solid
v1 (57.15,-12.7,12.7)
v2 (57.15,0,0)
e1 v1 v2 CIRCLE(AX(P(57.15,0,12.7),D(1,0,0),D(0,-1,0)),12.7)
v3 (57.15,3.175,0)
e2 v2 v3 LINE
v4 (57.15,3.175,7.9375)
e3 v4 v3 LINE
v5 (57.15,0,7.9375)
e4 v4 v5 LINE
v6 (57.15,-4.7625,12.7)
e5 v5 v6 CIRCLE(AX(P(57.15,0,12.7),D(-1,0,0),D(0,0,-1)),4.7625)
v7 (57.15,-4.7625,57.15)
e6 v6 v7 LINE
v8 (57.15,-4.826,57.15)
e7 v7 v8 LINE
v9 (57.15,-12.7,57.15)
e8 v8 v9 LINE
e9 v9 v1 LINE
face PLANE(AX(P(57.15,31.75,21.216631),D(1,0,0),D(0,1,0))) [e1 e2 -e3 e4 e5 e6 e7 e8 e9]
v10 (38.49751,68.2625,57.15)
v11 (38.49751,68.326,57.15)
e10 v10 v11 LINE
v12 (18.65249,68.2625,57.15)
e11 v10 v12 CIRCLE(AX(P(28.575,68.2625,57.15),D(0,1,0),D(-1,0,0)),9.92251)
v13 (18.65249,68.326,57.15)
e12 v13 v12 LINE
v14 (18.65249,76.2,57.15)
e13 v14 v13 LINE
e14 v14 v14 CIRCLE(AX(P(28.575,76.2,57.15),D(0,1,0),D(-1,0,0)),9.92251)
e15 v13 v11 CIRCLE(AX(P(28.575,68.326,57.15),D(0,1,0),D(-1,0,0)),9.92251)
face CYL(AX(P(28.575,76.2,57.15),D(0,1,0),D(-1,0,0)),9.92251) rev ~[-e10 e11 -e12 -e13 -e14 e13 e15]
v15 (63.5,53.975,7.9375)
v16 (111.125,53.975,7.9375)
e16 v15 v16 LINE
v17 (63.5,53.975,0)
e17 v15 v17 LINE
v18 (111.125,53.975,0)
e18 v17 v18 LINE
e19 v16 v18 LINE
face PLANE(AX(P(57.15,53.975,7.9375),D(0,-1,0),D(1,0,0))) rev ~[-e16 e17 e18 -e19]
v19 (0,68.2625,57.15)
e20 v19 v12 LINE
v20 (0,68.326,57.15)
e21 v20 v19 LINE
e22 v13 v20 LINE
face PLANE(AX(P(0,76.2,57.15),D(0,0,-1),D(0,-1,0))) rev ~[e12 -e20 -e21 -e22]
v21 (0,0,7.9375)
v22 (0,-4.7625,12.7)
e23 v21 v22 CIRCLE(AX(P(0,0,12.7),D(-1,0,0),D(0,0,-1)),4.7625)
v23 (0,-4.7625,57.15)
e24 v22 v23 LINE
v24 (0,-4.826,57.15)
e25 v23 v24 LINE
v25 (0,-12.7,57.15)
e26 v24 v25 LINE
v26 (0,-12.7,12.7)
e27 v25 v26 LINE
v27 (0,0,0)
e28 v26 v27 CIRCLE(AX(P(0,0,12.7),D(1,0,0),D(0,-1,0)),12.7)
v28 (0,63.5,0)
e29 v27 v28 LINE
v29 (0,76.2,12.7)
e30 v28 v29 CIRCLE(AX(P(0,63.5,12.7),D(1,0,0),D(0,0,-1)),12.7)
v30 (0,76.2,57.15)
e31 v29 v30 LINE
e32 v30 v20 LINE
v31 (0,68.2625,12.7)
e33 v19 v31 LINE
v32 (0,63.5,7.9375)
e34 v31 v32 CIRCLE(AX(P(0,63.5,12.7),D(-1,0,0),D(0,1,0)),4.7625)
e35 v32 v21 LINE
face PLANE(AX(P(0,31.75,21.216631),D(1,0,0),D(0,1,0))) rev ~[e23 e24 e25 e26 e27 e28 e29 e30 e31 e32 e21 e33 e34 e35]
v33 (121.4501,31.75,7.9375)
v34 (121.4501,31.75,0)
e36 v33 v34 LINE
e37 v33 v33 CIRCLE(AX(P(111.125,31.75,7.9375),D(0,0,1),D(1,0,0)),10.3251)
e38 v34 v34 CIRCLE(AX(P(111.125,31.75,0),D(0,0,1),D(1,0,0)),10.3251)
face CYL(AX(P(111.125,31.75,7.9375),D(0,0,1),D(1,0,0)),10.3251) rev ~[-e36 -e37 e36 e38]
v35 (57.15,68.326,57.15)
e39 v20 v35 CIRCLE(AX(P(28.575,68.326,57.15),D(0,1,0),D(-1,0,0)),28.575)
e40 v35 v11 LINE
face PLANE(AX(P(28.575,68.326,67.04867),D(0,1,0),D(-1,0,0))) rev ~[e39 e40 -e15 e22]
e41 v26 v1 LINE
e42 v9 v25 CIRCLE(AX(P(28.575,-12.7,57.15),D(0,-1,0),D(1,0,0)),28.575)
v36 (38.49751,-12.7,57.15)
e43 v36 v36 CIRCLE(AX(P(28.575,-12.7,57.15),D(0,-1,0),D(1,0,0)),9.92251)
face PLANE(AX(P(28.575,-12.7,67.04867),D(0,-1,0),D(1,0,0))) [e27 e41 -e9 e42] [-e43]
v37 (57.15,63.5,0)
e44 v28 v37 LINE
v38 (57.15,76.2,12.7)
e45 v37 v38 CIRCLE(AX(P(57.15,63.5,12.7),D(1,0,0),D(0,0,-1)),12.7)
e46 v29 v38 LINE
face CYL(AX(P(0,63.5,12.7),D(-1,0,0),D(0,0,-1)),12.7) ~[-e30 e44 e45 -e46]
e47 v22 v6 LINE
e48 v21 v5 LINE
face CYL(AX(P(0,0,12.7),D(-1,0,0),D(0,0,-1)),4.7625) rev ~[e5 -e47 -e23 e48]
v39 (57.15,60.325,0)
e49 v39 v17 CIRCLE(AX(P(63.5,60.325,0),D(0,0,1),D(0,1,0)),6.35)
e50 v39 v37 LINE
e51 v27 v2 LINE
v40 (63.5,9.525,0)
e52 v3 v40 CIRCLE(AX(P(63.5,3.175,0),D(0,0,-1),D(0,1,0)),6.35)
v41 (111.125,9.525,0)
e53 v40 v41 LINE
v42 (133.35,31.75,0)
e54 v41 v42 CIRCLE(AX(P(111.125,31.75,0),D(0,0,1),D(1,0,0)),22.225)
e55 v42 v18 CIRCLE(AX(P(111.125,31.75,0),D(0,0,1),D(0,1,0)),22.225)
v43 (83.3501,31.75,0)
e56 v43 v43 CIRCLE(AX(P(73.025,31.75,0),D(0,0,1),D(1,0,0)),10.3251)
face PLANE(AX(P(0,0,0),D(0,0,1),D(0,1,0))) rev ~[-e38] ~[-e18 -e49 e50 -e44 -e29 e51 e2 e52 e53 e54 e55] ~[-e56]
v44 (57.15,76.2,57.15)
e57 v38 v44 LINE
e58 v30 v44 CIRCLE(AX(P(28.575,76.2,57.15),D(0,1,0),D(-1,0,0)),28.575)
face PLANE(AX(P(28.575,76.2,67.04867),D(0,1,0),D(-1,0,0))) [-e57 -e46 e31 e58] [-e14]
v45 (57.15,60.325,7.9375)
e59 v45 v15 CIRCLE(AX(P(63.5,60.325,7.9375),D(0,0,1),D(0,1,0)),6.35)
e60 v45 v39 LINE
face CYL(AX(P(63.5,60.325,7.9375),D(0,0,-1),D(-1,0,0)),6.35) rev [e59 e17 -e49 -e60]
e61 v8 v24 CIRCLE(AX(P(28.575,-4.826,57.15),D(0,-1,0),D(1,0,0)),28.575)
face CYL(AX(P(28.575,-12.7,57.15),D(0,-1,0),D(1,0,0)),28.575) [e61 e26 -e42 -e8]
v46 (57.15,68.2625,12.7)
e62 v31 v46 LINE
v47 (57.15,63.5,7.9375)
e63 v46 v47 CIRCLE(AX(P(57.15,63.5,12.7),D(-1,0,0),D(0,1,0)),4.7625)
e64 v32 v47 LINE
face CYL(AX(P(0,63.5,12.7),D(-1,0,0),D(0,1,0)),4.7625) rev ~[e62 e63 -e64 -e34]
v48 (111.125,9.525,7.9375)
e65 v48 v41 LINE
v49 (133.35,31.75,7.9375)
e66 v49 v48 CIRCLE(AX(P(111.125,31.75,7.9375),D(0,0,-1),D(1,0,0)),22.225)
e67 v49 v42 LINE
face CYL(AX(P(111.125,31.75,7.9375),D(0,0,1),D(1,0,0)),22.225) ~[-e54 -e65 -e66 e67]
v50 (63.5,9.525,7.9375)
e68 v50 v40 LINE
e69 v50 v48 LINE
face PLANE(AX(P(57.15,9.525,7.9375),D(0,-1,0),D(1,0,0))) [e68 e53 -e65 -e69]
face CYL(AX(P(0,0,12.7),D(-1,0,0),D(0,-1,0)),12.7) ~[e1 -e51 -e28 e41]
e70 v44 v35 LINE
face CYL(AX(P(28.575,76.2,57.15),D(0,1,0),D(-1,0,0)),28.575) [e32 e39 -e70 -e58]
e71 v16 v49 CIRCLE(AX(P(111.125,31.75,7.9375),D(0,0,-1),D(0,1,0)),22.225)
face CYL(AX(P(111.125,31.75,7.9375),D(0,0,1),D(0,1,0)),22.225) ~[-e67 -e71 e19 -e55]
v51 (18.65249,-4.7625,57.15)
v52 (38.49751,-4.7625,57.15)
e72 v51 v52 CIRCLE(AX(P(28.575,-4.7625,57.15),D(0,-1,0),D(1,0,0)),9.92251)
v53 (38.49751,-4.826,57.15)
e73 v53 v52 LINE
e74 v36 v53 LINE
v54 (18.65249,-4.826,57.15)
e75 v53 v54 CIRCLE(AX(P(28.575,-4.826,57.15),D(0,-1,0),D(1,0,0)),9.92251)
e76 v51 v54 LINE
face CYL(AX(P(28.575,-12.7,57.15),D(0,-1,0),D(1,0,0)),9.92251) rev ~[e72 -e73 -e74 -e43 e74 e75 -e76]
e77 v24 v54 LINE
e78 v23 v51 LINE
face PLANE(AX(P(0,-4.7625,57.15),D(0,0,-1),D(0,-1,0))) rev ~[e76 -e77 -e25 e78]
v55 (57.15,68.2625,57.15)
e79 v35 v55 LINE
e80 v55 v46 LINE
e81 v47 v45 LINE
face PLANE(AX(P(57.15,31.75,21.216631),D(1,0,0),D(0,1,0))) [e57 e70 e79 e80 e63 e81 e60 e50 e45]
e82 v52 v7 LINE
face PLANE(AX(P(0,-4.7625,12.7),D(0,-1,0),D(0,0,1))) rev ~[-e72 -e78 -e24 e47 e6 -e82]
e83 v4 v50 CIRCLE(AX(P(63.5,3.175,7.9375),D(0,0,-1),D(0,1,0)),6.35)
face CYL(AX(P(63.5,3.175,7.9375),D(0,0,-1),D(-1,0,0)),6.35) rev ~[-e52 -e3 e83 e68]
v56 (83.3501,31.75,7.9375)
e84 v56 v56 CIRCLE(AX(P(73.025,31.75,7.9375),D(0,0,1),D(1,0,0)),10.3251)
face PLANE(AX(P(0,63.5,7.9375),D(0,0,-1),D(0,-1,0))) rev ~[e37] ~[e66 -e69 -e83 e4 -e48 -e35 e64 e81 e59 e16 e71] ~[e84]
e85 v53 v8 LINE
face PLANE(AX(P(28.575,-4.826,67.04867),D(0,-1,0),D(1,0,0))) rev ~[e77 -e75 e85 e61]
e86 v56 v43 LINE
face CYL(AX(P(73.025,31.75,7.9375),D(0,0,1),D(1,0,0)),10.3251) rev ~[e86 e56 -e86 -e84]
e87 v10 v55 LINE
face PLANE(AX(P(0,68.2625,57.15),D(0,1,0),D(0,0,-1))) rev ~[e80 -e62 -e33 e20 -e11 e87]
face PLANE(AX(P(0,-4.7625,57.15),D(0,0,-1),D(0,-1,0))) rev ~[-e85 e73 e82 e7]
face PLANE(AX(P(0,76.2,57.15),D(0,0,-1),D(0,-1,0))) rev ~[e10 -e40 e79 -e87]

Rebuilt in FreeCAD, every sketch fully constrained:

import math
import FreeCAD as App
import Part
import Sketcher
Q = App.Units.Quantity


def edges_at(feature, points):
    """Names of the edges that pass closest to the given points."""
    edges = feature.Shape.Edges
    near = lambda p: min(range(len(edges)), key=lambda i: edges[i].distToShape(Part.Vertex(*p))[0])
    return sorted({f"Edge{near(p) + 1}" for p in points})

doc = App.newDocument("Part")
body = doc.addObject("PartDesign::Body", "Body")

sketch1 = body.newObject("Sketcher::SketchObject", "Sketch")
sketch1.AttachmentSupport = (doc.getObject("YZ_Plane"), [""])
sketch1.MapMode = "FlatFace"
sketch1.addGeometry([
    Part.ArcOfCircle(Part.Circle(App.Vector(0, 12.7, 0), App.Vector(0, 0, 1), 12.7), math.radians(180), math.radians(270)),
    Part.LineSegment(App.Vector(0, 0, 0), App.Vector(63.5, 0, 0)),
    Part.ArcOfCircle(Part.Circle(App.Vector(63.5, 12.7, 0), App.Vector(0, 0, 1), 12.7), math.radians(-90), math.radians(0)),
    Part.LineSegment(App.Vector(76.2, 12.7, 0), App.Vector(76.2, 57.1, 0)),
    Part.LineSegment(App.Vector(76.2, 57.1, 0), App.Vector(68.3, 57.1, 0)),
    Part.LineSegment(App.Vector(68.3, 57.1, 0), App.Vector(68.3, 12.7, 0)),
    Part.ArcOfCircle(Part.Circle(App.Vector(63.5, 12.7, 0), App.Vector(0, 0, 1), 4.8), math.radians(-90), math.radians(0)),
    Part.LineSegment(App.Vector(63.5, 7.9, 0), App.Vector(0, 7.9, 0)),
    Part.ArcOfCircle(Part.Circle(App.Vector(0, 12.7, 0), App.Vector(0, 0, 1), 4.8), math.radians(180), math.radians(270)),
    Part.LineSegment(App.Vector(-4.8, 12.7, 0), App.Vector(-4.8, 57.1, 0)),
    Part.LineSegment(App.Vector(-4.8, 57.1, 0), App.Vector(-12.7, 57.1, 0)),
    Part.LineSegment(App.Vector(-12.7, 57.1, 0), App.Vector(-12.7, 12.7, 0)),
], False)
sketch1.addConstraint([
    Sketcher.Constraint("Tangent", 0, 2, 1, 1),
    Sketcher.Constraint("Tangent", 1, 2, 2, 1),
    Sketcher.Constraint("Tangent", 2, 2, 3, 1),
    Sketcher.Constraint("Coincident", 3, 2, 4, 1),
    Sketcher.Constraint("Coincident", 4, 2, 5, 1),
    Sketcher.Constraint("Tangent", 5, 2, 6, 2),
    Sketcher.Constraint("Tangent", 6, 1, 7, 1),
    Sketcher.Constraint("Tangent", 7, 2, 8, 2),
    Sketcher.Constraint("Tangent", 8, 1, 9, 1),
    Sketcher.Constraint("Coincident", 9, 2, 10, 1),
    Sketcher.Constraint("Coincident", 10, 2, 11, 1),
    Sketcher.Constraint("Tangent", 11, 2, 0, 1),
    Sketcher.Constraint("Horizontal", 1),
    Sketcher.Constraint("Vertical", 3),
    Sketcher.Constraint("Horizontal", 4),
    Sketcher.Constraint("Vertical", 5),
    Sketcher.Constraint("Horizontal", 7),
    Sketcher.Constraint("Vertical", 9),
    Sketcher.Constraint("Horizontal", 10),
    Sketcher.Constraint("Vertical", 11),
    Sketcher.Constraint("Coincident", 0, 2, -1, 1),
    Sketcher.Constraint("Coincident", 6, 3, 2, 3),
    Sketcher.Constraint("Coincident", 8, 3, 0, 3),
    Sketcher.Constraint("Equal", 0, 2),
    Sketcher.Constraint("Horizontal", 4, 2, 9, 2),
    Sketcher.Constraint("Radius", 0, Q("0.5 in")),
    Sketcher.Constraint("DistanceX", 1, 1, 1, 2, Q("2.5 in")),
    Sketcher.Constraint("Radius", 6, Q("0.1875 in")),
    Sketcher.Constraint("DistanceY", 3, 1, 3, 2, Q("1.75 in")),
])
pad1 = body.newObject("PartDesign::Pad", "Pad")
pad1.Profile = sketch1
pad1.Length = Q("2.25 in")

sketch2 = body.newObject("Sketcher::SketchObject", "Sketch001")
sketch2.AttachmentSupport = (doc.getObject("XZ_Plane"), [""])
sketch2.MapMode = "FlatFace"
sketch2.AttachmentOffset = App.Placement(App.Vector(0, 0, 0.5 * 25.4), App.Rotation())
sketch2.addGeometry([
    Part.LineSegment(App.Vector(0, 57, 0), App.Vector(57, 57, 0)),
    Part.ArcOfCircle(Part.Circle(App.Vector(29, 57, 0), App.Vector(0, 0, 1), 29), math.radians(0), math.radians(180)),
], False)
sketch2.addConstraint([
    Sketcher.Constraint("Coincident", 0, 1, 1, 2),
    Sketcher.Constraint("Coincident", 1, 1, 0, 2),
    Sketcher.Constraint("Horizontal", 0),
    Sketcher.Constraint("PointOnObject", 0, 1, -2),
    Sketcher.Constraint("Horizontal", 1, 3, 0, 1),
    Sketcher.Constraint("Radius", 1, Q("1.125 in")),
    Sketcher.Constraint("DistanceY", -1, 1, 1, 3, Q("2.25 in")),
])
pad2 = body.newObject("PartDesign::Pad", "Pad001")
pad2.Profile = sketch2
pad2.Length = Q("0.31 in")
pad2.Reversed = True

sketch3 = body.newObject("Sketcher::SketchObject", "Sketch002")
sketch3.AttachmentSupport = (doc.getObject("XZ_Plane"), [""])
sketch3.MapMode = "FlatFace"
sketch3.AttachmentOffset = App.Placement(App.Vector(0, 0, -3 * 25.4), App.Rotation())
sketch3.addGeometry([
    Part.LineSegment(App.Vector(57, 57, 0), App.Vector(0, 57, 0)),
    Part.ArcOfCircle(Part.Circle(App.Vector(29, 57, 0), App.Vector(0, 0, 1), 29), math.radians(0), math.radians(180)),
], False)
sketch3.addConstraint([
    Sketcher.Constraint("Coincident", 0, 1, 1, 1),
    Sketcher.Constraint("Coincident", 1, 2, 0, 2),
    Sketcher.Constraint("Horizontal", 0),
    Sketcher.Constraint("PointOnObject", 1, 2, -2),
    Sketcher.Constraint("Horizontal", 1, 3, 0, 1),
    Sketcher.Constraint("Radius", 1, Q("1.125 in")),
    Sketcher.Constraint("DistanceY", -1, 1, 1, 3, Q("2.25 in")),
])
pad3 = body.newObject("PartDesign::Pad", "Pad002")
pad3.Profile = sketch3
pad3.Length = Q("0.31 in")

sketch4 = body.newObject("Sketcher::SketchObject", "Sketch003")
sketch4.AttachmentSupport = (doc.getObject("XZ_Plane"), [""])
sketch4.MapMode = "FlatFace"
sketch4.AttachmentOffset = App.Placement(App.Vector(0, 0, 0.5 * 25.4), App.Rotation())
sketch4.addGeometry(Part.Circle(App.Vector(29, 57, 0), App.Vector(0, 0, 1), 10), False)
sketch4.addConstraint([
    Sketcher.Constraint("Diameter", 0, Q("0.7813 in")),
    Sketcher.Constraint("DistanceY", -1, 1, 0, 3, Q("2.25 in")),
    Sketcher.Constraint("DistanceX", -1, 1, 0, 3, Q("1.125 in")),
])
pocket1 = body.newObject("PartDesign::Pocket", "Pocket")
pocket1.Profile = sketch4
pocket1.Length = Q("1 in")

sketch5 = body.newObject("Sketcher::SketchObject", "Sketch004")
sketch5.AttachmentSupport = (doc.getObject("XZ_Plane"), [""])
sketch5.MapMode = "FlatFace"
sketch5.AttachmentOffset = App.Placement(App.Vector(0, 0, -3 * 25.4), App.Rotation())
sketch5.addGeometry(Part.Circle(App.Vector(29, 57, 0), App.Vector(0, 0, 1), 10), False)
sketch5.addConstraint([
    Sketcher.Constraint("Diameter", 0, Q("0.7813 in")),
    Sketcher.Constraint("DistanceY", -1, 1, 0, 3, Q("2.25 in")),
    Sketcher.Constraint("DistanceX", -1, 1, 0, 3, Q("1.125 in")),
])
pocket2 = body.newObject("PartDesign::Pocket", "Pocket001")
pocket2.Profile = sketch5
pocket2.Length = Q("1 in")
pocket2.Reversed = True

sketch6 = body.newObject("Sketcher::SketchObject", "Sketch005")
sketch6.AttachmentSupport = (doc.getObject("XY_Plane"), [""])
sketch6.MapMode = "FlatFace"
sketch6.AttachmentOffset = App.Placement(App.Vector(0, 0, 0.3125 * 25.4), App.Rotation())
sketch6.addGeometry([
    Part.LineSegment(App.Vector(57, 54, 0), App.Vector(57, 10, 0)),
    Part.LineSegment(App.Vector(57, 10, 0), App.Vector(133, 10, 0)),
    Part.LineSegment(App.Vector(133, 10, 0), App.Vector(133, 54, 0)),
    Part.LineSegment(App.Vector(133, 54, 0), App.Vector(57, 54, 0)),
], False)
sketch6.addConstraint([
    Sketcher.Constraint("Coincident", 0, 2, 1, 1),
    Sketcher.Constraint("Coincident", 1, 2, 2, 1),
    Sketcher.Constraint("Coincident", 2, 2, 3, 1),
    Sketcher.Constraint("Coincident", 3, 2, 0, 1),
    Sketcher.Constraint("Vertical", 0),
    Sketcher.Constraint("Horizontal", 1),
    Sketcher.Constraint("Vertical", 2),
    Sketcher.Constraint("Horizontal", 3),
    Sketcher.Constraint("DistanceX", 1, 1, 1, 2, Q("3 in")),
    Sketcher.Constraint("DistanceY", 0, 2, 0, 1, Q("1.75 in")),
    Sketcher.Constraint("DistanceX", -1, 1, 0, 2, Q("2.25 in")),
    Sketcher.Constraint("DistanceY", -1, 1, 0, 2, Q("0.375 in")),
])
pad4 = body.newObject("PartDesign::Pad", "Pad003")
pad4.Profile = sketch6
pad4.Length = Q("0.3125 in")
pad4.Reversed = True

sketch7 = body.newObject("Sketcher::SketchObject", "Sketch006")
sketch7.AttachmentSupport = (doc.getObject("XY_Plane"), [""])
sketch7.MapMode = "FlatFace"
sketch7.AttachmentOffset = App.Placement(App.Vector(0, 0, 0.3125 * 25.4), App.Rotation())
sketch7.addGeometry([
    Part.Circle(App.Vector(73, 32, 0), App.Vector(0, 0, 1), 10),
    Part.Circle(App.Vector(111, 32, 0), App.Vector(0, 0, 1), 10),
    Part.ArcOfCircle(Part.Circle(App.Vector(111, 32, 0), App.Vector(0, 0, 1), 22), math.radians(0), math.radians(90)),
    Part.LineSegment(App.Vector(133, 32, 0), App.Vector(133, 54, 0)),
    Part.LineSegment(App.Vector(133, 54, 0), App.Vector(111, 54, 0)),
    Part.LineSegment(App.Vector(133, 10, 0), App.Vector(133, 32, 0)),
    Part.ArcOfCircle(Part.Circle(App.Vector(111, 32, 0), App.Vector(0, 0, 1), 22), math.radians(-90), math.radians(0)),
    Part.LineSegment(App.Vector(111, 10, 0), App.Vector(133, 10, 0)),
], False)
sketch7.addConstraint([
    Sketcher.Constraint("Tangent", 2, 1, 3, 1),
    Sketcher.Constraint("Coincident", 3, 2, 4, 1),
    Sketcher.Constraint("Tangent", 4, 2, 2, 2),
    Sketcher.Constraint("Tangent", 5, 2, 6, 2),
    Sketcher.Constraint("Tangent", 6, 1, 7, 1),
    Sketcher.Constraint("Coincident", 7, 2, 5, 1),
    Sketcher.Constraint("Vertical", 3),
    Sketcher.Constraint("Horizontal", 4),
    Sketcher.Constraint("Vertical", 5),
    Sketcher.Constraint("Horizontal", 7),
    Sketcher.Constraint("Coincident", 2, 3, 1, 3),
    Sketcher.Constraint("Coincident", 6, 3, 1, 3),
    Sketcher.Constraint("Equal", 0, 1),
    Sketcher.Constraint("Equal", 2, 6),
    Sketcher.Constraint("Horizontal", 0, 3, 1, 3),
    Sketcher.Constraint("Diameter", 0, Q("0.813 in")),
    Sketcher.Constraint("Radius", 2, Q("0.875 in")),
    Sketcher.Constraint("DistanceX", 0, 3, 1, 3, Q("1.5 in")),
    Sketcher.Constraint("DistanceY", -1, 1, 0, 3, Q("1.25 in")),
    Sketcher.Constraint("DistanceX", -1, 1, 2, 1, Q("5.25 in")),
])
pocket3 = body.newObject("PartDesign::Pocket", "Pocket002")
pocket3.Profile = sketch7
pocket3.Length = Q("1 in")
doc.recompute()

fillet = body.newObject("PartDesign::Fillet", "Fillet")
fillet.Base = (pocket3, edges_at(pocket3, [(57.15, 9.525, 3.969), (57.15, 53.975, 3.969)]))
fillet.Radius = Q("0.25 in")

doc.recompute()
